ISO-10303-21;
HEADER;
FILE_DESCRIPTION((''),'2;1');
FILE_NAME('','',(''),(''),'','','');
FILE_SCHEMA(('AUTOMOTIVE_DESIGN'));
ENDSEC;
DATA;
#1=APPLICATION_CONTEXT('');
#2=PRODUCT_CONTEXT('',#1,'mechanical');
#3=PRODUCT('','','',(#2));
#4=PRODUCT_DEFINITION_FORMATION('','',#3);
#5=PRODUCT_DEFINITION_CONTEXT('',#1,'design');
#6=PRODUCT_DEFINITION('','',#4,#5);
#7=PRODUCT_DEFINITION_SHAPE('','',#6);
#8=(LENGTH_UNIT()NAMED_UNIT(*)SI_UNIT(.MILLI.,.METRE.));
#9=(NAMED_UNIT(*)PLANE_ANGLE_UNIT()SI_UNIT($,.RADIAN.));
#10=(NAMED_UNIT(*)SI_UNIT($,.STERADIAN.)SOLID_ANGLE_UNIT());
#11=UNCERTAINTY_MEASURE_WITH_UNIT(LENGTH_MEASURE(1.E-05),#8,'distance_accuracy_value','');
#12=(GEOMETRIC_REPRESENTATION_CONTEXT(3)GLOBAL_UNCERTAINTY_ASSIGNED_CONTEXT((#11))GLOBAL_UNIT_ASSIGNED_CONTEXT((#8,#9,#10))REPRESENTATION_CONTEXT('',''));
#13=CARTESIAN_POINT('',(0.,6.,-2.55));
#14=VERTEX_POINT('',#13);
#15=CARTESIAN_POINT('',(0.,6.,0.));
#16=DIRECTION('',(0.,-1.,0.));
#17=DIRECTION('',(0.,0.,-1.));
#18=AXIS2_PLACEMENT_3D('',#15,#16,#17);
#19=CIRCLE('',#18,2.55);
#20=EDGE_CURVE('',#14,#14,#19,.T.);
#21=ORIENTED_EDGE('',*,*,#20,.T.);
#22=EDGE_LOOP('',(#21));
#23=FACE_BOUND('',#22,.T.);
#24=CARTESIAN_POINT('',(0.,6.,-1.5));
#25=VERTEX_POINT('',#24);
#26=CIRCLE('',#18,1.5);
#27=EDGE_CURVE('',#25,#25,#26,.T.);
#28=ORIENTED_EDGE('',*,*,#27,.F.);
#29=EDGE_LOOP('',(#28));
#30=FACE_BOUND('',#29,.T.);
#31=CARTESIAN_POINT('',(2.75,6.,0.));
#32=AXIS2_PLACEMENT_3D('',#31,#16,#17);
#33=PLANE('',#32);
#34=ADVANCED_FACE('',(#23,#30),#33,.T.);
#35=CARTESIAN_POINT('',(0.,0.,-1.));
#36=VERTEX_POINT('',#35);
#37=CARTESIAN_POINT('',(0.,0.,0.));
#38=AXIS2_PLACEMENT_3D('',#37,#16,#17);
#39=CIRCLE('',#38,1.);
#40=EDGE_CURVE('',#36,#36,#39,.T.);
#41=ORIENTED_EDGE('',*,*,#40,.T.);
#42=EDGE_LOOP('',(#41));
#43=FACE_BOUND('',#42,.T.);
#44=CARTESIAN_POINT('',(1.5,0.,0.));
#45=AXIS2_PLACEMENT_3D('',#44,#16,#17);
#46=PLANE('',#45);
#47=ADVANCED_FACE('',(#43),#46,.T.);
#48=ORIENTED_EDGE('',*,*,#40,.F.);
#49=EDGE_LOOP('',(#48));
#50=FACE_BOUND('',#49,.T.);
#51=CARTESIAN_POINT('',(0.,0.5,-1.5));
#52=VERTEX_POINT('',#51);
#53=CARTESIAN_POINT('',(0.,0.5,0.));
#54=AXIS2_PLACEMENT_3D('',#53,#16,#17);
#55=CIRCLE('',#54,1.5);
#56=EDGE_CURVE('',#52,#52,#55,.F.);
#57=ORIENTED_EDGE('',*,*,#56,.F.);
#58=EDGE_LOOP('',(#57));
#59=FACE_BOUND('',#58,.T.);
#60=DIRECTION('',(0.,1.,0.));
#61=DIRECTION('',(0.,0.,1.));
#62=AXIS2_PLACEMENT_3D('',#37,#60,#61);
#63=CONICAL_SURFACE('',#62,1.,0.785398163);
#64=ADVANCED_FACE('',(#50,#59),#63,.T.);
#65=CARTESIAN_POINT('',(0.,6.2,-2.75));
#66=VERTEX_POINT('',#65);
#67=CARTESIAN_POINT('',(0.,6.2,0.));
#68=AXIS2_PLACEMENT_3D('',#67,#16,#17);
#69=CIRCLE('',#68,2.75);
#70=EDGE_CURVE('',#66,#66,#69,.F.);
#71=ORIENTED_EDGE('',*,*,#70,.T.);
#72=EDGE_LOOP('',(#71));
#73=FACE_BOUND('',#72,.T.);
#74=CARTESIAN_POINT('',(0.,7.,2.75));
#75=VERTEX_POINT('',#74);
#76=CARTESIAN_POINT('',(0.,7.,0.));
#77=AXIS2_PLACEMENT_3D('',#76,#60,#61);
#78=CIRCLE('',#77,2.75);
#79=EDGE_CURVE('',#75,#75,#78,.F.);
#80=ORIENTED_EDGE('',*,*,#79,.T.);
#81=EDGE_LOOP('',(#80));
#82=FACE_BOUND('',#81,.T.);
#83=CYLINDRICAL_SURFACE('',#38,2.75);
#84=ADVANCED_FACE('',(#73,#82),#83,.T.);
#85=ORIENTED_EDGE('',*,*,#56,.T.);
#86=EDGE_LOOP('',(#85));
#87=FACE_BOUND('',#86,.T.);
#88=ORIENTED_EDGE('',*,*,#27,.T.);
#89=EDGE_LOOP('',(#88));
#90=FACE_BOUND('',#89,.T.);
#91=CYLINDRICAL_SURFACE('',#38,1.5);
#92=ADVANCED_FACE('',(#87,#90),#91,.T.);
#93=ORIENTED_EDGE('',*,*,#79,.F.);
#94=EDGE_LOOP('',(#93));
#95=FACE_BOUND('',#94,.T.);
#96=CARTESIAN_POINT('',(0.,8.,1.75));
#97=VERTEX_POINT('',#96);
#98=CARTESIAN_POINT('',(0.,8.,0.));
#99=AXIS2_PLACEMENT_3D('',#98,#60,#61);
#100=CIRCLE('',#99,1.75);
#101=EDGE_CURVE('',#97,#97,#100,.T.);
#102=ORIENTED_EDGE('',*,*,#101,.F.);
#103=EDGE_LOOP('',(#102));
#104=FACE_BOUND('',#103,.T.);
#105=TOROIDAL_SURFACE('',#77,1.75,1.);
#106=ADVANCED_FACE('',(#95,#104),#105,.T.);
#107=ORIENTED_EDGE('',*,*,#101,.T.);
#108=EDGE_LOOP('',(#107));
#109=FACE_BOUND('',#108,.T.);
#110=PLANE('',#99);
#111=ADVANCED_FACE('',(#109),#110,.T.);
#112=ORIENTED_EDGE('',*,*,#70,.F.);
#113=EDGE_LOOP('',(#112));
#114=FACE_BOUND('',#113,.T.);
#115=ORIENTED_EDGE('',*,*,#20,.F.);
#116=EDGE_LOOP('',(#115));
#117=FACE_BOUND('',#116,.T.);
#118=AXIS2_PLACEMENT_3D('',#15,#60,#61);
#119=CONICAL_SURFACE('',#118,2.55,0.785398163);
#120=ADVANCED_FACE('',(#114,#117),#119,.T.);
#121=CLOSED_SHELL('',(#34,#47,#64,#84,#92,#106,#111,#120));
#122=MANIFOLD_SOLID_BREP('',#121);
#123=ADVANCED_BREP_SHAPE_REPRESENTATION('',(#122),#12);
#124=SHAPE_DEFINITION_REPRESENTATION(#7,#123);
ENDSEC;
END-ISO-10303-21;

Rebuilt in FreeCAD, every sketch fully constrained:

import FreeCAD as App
import Part
import Sketcher
from FreeCAD import Vector
Q = App.Units.Quantity


def edges_at(feature, points):
    """Names of the edges that pass closest to the given points."""
    edges = feature.Shape.Edges
    near = lambda p: min(range(len(edges)), key=lambda i: edges[i].distToShape(Part.Vertex(*p))[0])
    return sorted({f"Edge{near(p) + 1}" for p in points})


def add_polygon(sketch, points):
    """Adds a closed chain of lines whose ends are joined by coincident constraints."""
    first, n = sketch.GeometryCount, len(points)
    for a, b in zip(points, points[1:] + points[:1]):
        sketch.addGeometry(Part.LineSegment(App.Vector(*a, 0), App.Vector(*b, 0)), False)
    for i in range(n):
        sketch.addConstraint(Sketcher.Constraint("Coincident", first + i, 2, first + (i + 1) % n, 1))

doc = App.newDocument("Part")
params = doc.addObject("Spreadsheet::Sheet", "Params")
for row, (alias, value) in enumerate([
    ("sketch1_height", "8 mm"),
    ("sketch1_height2", "6 mm"),
    ("sketch1_width", "1.5 mm"),
    ("sketch1_width2", "1.25 mm"),
    ("revolution_angle", "360 deg"),
    ("fillet_radius", "1 mm"),
    ("chamfer_size", "0.5 mm"),
    ("chamfer2_size", "0.2 mm"),
], start=1):
    params.set(f"A{row}", alias)
    params.set(f"B{row}", "=" + value)
    params.setAlias(f"B{row}", alias)

body = doc.addObject("PartDesign::Body", "Body")

# Sketch on XY plane
sketch1 = body.newObject("Sketcher::SketchObject", "Sketch")
sketch1.AttachmentSupport = (doc.getObject("XY_Plane"), [""])
sketch1.MapMode = "FlatFace"
add_polygon(sketch1, [(0, 8), (0, 0), (1.5, 0), (1.5, 6), (2.75, 6), (2.75, 8)])  # lines 0-5
sketch1.addConstraint(Sketcher.Constraint("Vertical", 0))
sketch1.addConstraint(Sketcher.Constraint("Horizontal", 1))
sketch1.addConstraint(Sketcher.Constraint("Vertical", 2))
sketch1.addConstraint(Sketcher.Constraint("Horizontal", 3))
sketch1.addConstraint(Sketcher.Constraint("Vertical", 4))
sketch1.addConstraint(Sketcher.Constraint("Horizontal", 5))
sketch1.addConstraint(Sketcher.Constraint("Coincident", 0, 2, -1, 1))
sketch1.addConstraint(Sketcher.Constraint("DistanceY", 0, 2, 0, 1, Q("8 mm")))
sketch1.addConstraint(Sketcher.Constraint("DistanceY", 2, 1, 2, 2, Q("6 mm")))
sketch1.addConstraint(Sketcher.Constraint("DistanceX", 1, 1, 1, 2, Q("1.5 mm")))
sketch1.addConstraint(Sketcher.Constraint("DistanceX", 3, 1, 3, 2, Q("1.25 mm")))
sketch1.setExpression("Constraints[13]", "Params.sketch1_height")
sketch1.setExpression("Constraints[14]", "Params.sketch1_height2")
sketch1.setExpression("Constraints[15]", "Params.sketch1_width")
sketch1.setExpression("Constraints[16]", "Params.sketch1_width2")
revolution = body.newObject("PartDesign::Revolution", "Revolution")
revolution.Profile = sketch1
revolution.ReferenceAxis = (sketch1, ["V_Axis"])
revolution.setExpression("Angle", "Params.revolution_angle")
doc.recompute()

fillet = body.newObject("PartDesign::Fillet", "Fillet")
fillet.Base = (revolution, edges_at(revolution, [(0, 8, 2.75)]))
fillet.setExpression("Radius", "Params.fillet_radius")
doc.recompute()

chamfer = body.newObject("PartDesign::Chamfer", "Chamfer")
chamfer.Base = (fillet, edges_at(fillet, [(0, 0, 1.5)]))
chamfer.setExpression("Size", "Params.chamfer_size")
doc.recompute()

chamfer2 = body.newObject("PartDesign::Chamfer", "Chamfer001")
chamfer2.Base = (chamfer, edges_at(chamfer, [(0, 6, 2.75)]))
chamfer2.setExpression("Size", "Params.chamfer2_size")

doc.recompute()
